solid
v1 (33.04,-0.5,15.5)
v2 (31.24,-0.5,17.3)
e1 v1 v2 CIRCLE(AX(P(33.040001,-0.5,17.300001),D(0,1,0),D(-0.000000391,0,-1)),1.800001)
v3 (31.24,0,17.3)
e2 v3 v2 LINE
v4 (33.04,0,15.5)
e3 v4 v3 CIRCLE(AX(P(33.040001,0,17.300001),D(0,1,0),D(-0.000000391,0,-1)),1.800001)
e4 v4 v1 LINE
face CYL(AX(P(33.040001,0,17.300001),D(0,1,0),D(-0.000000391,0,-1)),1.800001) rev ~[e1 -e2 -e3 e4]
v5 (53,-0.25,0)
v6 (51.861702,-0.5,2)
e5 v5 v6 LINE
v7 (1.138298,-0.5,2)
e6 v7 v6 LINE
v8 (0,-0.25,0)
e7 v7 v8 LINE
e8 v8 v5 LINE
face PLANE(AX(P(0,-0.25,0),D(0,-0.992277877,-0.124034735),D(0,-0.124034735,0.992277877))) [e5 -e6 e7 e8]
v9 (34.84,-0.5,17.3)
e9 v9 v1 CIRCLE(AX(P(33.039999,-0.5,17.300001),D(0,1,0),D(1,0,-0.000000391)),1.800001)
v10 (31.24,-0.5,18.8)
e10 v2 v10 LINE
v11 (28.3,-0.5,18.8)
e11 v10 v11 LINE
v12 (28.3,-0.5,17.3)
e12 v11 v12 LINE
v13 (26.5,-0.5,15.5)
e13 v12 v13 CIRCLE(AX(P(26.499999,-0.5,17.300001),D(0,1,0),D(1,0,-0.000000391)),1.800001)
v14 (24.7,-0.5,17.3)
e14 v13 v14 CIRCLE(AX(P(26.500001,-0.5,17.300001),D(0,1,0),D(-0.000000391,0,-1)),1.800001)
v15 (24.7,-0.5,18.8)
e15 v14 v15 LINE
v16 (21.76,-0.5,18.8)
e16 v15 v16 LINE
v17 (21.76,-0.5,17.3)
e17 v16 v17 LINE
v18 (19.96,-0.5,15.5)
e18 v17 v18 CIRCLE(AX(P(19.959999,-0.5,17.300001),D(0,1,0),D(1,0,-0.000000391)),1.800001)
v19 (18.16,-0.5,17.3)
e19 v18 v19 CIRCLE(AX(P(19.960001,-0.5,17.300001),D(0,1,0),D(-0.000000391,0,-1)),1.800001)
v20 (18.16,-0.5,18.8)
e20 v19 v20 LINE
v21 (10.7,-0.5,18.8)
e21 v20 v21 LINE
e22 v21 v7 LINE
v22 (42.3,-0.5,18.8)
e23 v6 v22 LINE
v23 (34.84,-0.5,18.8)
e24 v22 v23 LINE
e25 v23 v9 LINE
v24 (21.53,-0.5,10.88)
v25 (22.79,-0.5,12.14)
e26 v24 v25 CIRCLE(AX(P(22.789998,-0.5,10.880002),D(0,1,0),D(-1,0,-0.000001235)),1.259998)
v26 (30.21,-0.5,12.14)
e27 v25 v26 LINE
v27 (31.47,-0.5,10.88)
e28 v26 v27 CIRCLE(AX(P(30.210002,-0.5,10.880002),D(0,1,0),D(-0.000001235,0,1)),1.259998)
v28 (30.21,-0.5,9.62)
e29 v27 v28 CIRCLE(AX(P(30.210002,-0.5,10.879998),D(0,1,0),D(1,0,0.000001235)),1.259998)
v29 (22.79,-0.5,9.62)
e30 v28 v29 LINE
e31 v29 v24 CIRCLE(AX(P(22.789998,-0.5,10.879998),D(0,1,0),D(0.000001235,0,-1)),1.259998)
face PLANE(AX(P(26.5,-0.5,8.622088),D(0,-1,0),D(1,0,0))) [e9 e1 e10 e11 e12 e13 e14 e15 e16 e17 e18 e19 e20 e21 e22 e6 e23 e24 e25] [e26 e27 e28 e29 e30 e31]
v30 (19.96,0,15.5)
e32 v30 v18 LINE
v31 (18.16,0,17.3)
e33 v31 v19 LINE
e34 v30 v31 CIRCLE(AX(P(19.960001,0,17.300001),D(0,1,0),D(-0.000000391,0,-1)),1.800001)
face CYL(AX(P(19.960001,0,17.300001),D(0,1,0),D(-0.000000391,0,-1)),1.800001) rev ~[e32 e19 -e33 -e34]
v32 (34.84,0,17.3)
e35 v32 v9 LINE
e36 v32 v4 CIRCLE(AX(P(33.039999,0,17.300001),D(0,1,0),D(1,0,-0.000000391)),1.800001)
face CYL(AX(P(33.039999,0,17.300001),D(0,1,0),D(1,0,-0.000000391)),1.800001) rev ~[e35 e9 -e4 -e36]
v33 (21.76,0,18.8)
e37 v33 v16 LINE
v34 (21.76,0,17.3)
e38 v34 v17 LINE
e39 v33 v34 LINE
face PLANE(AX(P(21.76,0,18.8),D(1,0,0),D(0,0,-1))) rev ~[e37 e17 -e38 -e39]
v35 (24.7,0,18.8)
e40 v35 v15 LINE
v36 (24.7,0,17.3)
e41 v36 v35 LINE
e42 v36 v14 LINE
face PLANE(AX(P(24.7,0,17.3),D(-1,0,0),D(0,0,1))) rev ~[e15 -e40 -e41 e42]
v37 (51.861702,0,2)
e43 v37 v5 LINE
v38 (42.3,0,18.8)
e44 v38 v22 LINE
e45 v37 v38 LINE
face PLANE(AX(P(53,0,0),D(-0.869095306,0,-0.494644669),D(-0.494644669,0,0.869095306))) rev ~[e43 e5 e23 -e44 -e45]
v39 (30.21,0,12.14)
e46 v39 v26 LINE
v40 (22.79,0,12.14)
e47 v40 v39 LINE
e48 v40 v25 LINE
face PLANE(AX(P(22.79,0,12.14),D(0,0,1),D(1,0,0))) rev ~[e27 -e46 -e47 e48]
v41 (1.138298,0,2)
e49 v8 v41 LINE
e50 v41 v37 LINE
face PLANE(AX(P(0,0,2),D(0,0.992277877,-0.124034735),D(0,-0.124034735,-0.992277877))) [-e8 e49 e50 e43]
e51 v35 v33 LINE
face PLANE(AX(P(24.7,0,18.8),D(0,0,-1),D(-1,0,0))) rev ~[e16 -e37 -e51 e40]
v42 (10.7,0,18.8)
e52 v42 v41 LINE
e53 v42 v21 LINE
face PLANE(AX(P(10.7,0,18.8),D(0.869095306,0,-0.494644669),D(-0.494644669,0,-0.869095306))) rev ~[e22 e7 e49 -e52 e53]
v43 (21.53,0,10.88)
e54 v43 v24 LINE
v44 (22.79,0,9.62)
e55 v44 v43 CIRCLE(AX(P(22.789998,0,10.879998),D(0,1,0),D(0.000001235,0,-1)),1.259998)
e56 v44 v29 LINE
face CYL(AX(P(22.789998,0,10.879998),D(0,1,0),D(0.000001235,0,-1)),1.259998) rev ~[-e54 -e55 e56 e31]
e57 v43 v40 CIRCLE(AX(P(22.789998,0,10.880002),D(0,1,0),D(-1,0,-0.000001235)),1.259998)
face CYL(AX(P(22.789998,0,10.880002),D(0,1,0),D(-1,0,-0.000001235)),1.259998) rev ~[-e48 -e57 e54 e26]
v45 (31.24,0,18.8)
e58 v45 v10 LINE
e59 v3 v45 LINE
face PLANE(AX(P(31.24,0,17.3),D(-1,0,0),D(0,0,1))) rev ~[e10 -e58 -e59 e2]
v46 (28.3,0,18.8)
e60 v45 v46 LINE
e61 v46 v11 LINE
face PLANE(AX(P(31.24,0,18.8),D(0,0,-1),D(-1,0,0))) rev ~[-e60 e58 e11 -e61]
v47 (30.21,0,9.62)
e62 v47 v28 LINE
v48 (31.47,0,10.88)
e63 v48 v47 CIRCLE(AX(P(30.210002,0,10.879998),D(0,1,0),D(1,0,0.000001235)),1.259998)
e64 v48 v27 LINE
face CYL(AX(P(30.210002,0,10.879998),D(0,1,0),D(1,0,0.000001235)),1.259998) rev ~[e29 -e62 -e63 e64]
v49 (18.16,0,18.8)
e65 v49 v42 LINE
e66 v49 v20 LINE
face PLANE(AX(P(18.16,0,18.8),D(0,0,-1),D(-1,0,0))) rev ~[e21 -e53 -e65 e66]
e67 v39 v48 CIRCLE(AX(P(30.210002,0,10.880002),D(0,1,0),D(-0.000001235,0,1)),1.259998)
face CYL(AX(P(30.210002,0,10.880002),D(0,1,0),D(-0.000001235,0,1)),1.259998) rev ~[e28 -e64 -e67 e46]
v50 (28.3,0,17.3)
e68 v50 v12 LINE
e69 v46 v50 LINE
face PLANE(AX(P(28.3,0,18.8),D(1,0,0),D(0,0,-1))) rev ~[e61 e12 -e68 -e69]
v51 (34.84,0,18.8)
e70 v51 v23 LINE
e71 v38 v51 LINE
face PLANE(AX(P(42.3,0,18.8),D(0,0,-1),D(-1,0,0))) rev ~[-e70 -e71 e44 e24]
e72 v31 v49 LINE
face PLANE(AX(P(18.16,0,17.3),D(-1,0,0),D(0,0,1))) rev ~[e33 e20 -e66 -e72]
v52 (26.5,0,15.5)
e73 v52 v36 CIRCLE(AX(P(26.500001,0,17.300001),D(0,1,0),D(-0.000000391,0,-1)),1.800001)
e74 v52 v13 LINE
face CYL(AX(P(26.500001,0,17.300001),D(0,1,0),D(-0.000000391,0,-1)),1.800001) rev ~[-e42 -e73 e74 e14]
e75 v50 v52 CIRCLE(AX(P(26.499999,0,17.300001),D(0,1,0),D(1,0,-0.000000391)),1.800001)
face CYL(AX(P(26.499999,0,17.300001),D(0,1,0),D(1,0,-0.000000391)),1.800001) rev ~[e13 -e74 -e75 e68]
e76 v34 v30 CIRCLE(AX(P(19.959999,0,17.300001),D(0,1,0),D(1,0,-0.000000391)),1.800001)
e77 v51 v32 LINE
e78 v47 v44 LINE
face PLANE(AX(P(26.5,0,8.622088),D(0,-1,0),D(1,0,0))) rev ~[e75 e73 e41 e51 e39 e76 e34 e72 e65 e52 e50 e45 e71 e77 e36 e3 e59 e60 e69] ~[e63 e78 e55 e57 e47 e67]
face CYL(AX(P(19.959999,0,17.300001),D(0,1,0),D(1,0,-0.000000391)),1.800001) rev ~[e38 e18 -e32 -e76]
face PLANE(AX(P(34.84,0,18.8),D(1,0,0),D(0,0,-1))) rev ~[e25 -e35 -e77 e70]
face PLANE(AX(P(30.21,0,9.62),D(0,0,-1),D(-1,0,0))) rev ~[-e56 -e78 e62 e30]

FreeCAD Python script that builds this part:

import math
import FreeCAD as App
import Part
import Sketcher
Q = App.Units.Quantity


def add_polygon(sketch, points):
    """Adds a closed chain of lines whose ends are joined by coincident constraints."""
    first, n = sketch.GeometryCount, len(points)
    for a, b in zip(points, points[1:] + points[:1]):
        sketch.addGeometry(Part.LineSegment(App.Vector(*a, 0), App.Vector(*b, 0)), False)
    for i in range(n):
        sketch.addConstraint(Sketcher.Constraint("Coincident", first + i, 2, first + (i + 1) % n, 1))

doc = App.newDocument("Part")
body = doc.addObject("PartDesign::Body", "Body")

sketch1 = doc.addObject("Sketcher::SketchObject", "Sketch")
body.addObject(sketch1)
sketch1.AttachmentSupport = (doc.XZ_Plane, [""])
sketch1.MapMode = "FlatFace"
sketch1.addGeometry([
    Part.LineSegment(App.Vector(10.7, 18.8, 0), App.Vector(0, 0, 0)),
    Part.LineSegment(App.Vector(0, 0, 0), App.Vector(53, 0, 0)),
    Part.LineSegment(App.Vector(53, 0, 0), App.Vector(42.3, 18.8, 0)),
    Part.LineSegment(App.Vector(42.3, 18.8, 0), App.Vector(34.84, 18.8, 0)),
    Part.LineSegment(App.Vector(34.84, 18.8, 0), App.Vector(34.84, 17.3, 0)),
    Part.ArcOfCircle(Part.Circle(App.Vector(33.039999, 17.300001, 0), App.Vector(0, 0, 1), 1.800001), math.radians(-89.999978), math.radians(-0.000022)),
    Part.ArcOfCircle(Part.Circle(App.Vector(33.040001, 17.300001, 0), App.Vector(0, 0, 1), 1.800001), math.radians(-179.999978), math.radians(-90.000022)),
    Part.LineSegment(App.Vector(31.24, 17.3, 0), App.Vector(31.24, 18.8, 0)),
    Part.LineSegment(App.Vector(31.24, 18.8, 0), App.Vector(28.3, 18.8, 0)),
    Part.LineSegment(App.Vector(28.3, 18.8, 0), App.Vector(28.3, 17.3, 0)),
    Part.ArcOfCircle(Part.Circle(App.Vector(26.499999, 17.300001, 0), App.Vector(0, 0, 1), 1.800001), math.radians(-89.999978), math.radians(-0.000022)),
    Part.ArcOfCircle(Part.Circle(App.Vector(26.500001, 17.300001, 0), App.Vector(0, 0, 1), 1.800001), math.radians(-179.999978), math.radians(-90.000022)),
    Part.LineSegment(App.Vector(24.7, 17.3, 0), App.Vector(24.7, 18.8, 0)),
    Part.LineSegment(App.Vector(24.7, 18.8, 0), App.Vector(21.76, 18.8, 0)),
    Part.LineSegment(App.Vector(21.76, 18.8, 0), App.Vector(21.76, 17.3, 0)),
    Part.ArcOfCircle(Part.Circle(App.Vector(19.959999, 17.300001, 0), App.Vector(0, 0, 1), 1.800001), math.radians(-89.999978), math.radians(-0.000022)),
    Part.ArcOfCircle(Part.Circle(App.Vector(19.960001, 17.300001, 0), App.Vector(0, 0, 1), 1.800001), math.radians(-179.999978), math.radians(-90.000022)),
    Part.LineSegment(App.Vector(18.16, 17.3, 0), App.Vector(18.16, 18.8, 0)),
    Part.LineSegment(App.Vector(18.16, 18.8, 0), App.Vector(10.7, 18.8, 0)),
    Part.ArcOfCircle(Part.Circle(App.Vector(22.789998, 10.879998, 0), App.Vector(0, 0, 1), 1.259998), math.radians(179.999929), math.radians(270.000071)),
    Part.ArcOfCircle(Part.Circle(App.Vector(22.789998, 10.880002, 0), App.Vector(0, 0, 1), 1.259998), math.radians(89.999929), math.radians(180.000071)),
    Part.LineSegment(App.Vector(22.79, 12.14, 0), App.Vector(30.21, 12.14, 0)),
    Part.ArcOfCircle(Part.Circle(App.Vector(30.210002, 10.880002, 0), App.Vector(0, 0, 1), 1.259998), math.radians(-0.000071), math.radians(90.000071)),
    Part.ArcOfCircle(Part.Circle(App.Vector(30.210002, 10.879998, 0), App.Vector(0, 0, 1), 1.259998), math.radians(-90.000071), math.radians(0.000071)),
    Part.LineSegment(App.Vector(30.21, 9.62, 0), App.Vector(22.79, 9.62, 0)),
], False)
sketch1.addConstraint([
    Sketcher.Constraint("Coincident", 0, 2, 1, 1),
    Sketcher.Constraint("Coincident", 1, 2, 2, 1),
    Sketcher.Constraint("Coincident", 2, 2, 3, 1),
    Sketcher.Constraint("Coincident", 3, 2, 4, 1),
    Sketcher.Constraint("Tangent", 4, 2, 5, 2),
    Sketcher.Constraint("Tangent", 5, 1, 6, 2),
    Sketcher.Constraint("Tangent", 6, 1, 7, 1),
    Sketcher.Constraint("Coincident", 7, 2, 8, 1),
    Sketcher.Constraint("Coincident", 8, 2, 9, 1),
    Sketcher.Constraint("Tangent", 9, 2, 10, 2),
    Sketcher.Constraint("Tangent", 10, 1, 11, 2),
    Sketcher.Constraint("Tangent", 11, 1, 12, 1),
    Sketcher.Constraint("Coincident", 12, 2, 13, 1),
    Sketcher.Constraint("Coincident", 13, 2, 14, 1),
    Sketcher.Constraint("Tangent", 14, 2, 15, 2),
    Sketcher.Constraint("Tangent", 15, 1, 16, 2),
    Sketcher.Constraint("Tangent", 16, 1, 17, 1),
    Sketcher.Constraint("Coincident", 17, 2, 18, 1),
    Sketcher.Constraint("Coincident", 18, 2, 0, 1),
    Sketcher.Constraint("Coincident", 19, 1, 20, 2),
    Sketcher.Constraint("Tangent", 20, 1, 21, 1),
    Sketcher.Constraint("Tangent", 21, 2, 22, 2),
    Sketcher.Constraint("Coincident", 22, 1, 23, 2),
    Sketcher.Constraint("Tangent", 23, 1, 24, 1),
    Sketcher.Constraint("Tangent", 24, 2, 19, 2),
    Sketcher.Constraint("Horizontal", 1),
    Sketcher.Constraint("Horizontal", 3),
    Sketcher.Constraint("Vertical", 4),
    Sketcher.Constraint("Vertical", 7),
    Sketcher.Constraint("Horizontal", 8),
    Sketcher.Constraint("Vertical", 9),
    Sketcher.Constraint("Vertical", 12),
    Sketcher.Constraint("Horizontal", 13),
    Sketcher.Constraint("Vertical", 14),
    Sketcher.Constraint("Vertical", 17),
    Sketcher.Constraint("Horizontal", 18),
    Sketcher.Constraint("Horizontal", 21),
    Sketcher.Constraint("Horizontal", 24),
    Sketcher.Constraint("Coincident", 0, 2, -1, 1),
    Sketcher.Constraint("Coincident", 20, 3, 19, 3),
    Sketcher.Constraint("Coincident", 23, 3, 22, 3),
    Sketcher.Constraint("Equal", 5, 6),
    Sketcher.Constraint("Equal", 6, 10),
    Sketcher.Constraint("Equal", 10, 11),
    Sketcher.Constraint("Equal", 11, 15),
    Sketcher.Constraint("Equal", 15, 16),
    Sketcher.Constraint("Horizontal", 6, 3, 10, 3),
    Sketcher.Constraint("Horizontal", 11, 3, 15, 3),
    Sketcher.Constraint("Horizontal", 3, 2, 7, 2),
    Sketcher.Constraint("Horizontal", 8, 2, 12, 2),
    Sketcher.Constraint("Horizontal", 13, 2, 17, 2),
    Sketcher.Constraint("Horizontal", 23, 3, 19, 1),
    Sketcher.Constraint("Horizontal", 19, 1, 22, 1),
    Sketcher.Constraint("Vertical", 6, 3, 5, 1),
    Sketcher.Constraint("Vertical", 11, 3, 10, 1),
    Sketcher.Constraint("Vertical", 16, 3, 15, 1),
    Sketcher.Constraint("Equal", 8, 13),
    Sketcher.Constraint("Equal", 3, 18),
    Sketcher.Constraint("Equal", 0, 2),
    Sketcher.Constraint("Radius", 5, Q("1.800001 mm")),
    Sketcher.Constraint("DistanceX", 1, 1, 1, 2, Q("53 mm")),
    Sketcher.Constraint("Radius", 19, Q("1.259998 mm")),
    Sketcher.Constraint("DistanceY", 4, 2, 4, 1, Q("1.5 mm")),
    Sketcher.Constraint("DistanceX", 3, 2, 3, 1, Q("7.46 mm")),
    Sketcher.Constraint("DistanceX", 8, 2, 8, 1, Q("2.94 mm")),
    Sketcher.Constraint("DistanceX", 21, 1, 21, 2, Q("7.42 mm")),
    Sketcher.Constraint("DistanceY", -1, 1, 5, 3, Q("17.300001 mm")),
    Sketcher.Constraint("DistanceX", -1, 1, 19, 3, Q("22.789998 mm")),
    Sketcher.Constraint("DistanceY", -1, 1, 19, 3, Q("10.879998 mm")),
])
pad1 = doc.addObject("PartDesign::Pad", "Pad")
body.addObject(pad1)
pad1.Profile = sketch1
pad1.Length = 0.5

sketch2 = doc.addObject("Sketcher::SketchObject", "Sketch001")
body.addObject(sketch2)
sketch2.AttachmentSupport = (doc.YZ_Plane, [""])
sketch2.MapMode = "FlatFace"
add_polygon(sketch2, [(0, 2), (-0.25, 0), (0, 0)])
add_polygon(sketch2, [(-0.5, 2), (-0.5, 0), (-0.25, 0)])
sketch2.addConstraint([
    Sketcher.Constraint("Horizontal", 1),
    Sketcher.Constraint("Vertical", 2),
    Sketcher.Constraint("Vertical", 3),
    Sketcher.Constraint("Horizontal", 4),
    Sketcher.Constraint("Coincident", 1, 2, -1, 1),
    Sketcher.Constraint("Coincident", 4, 2, 0, 2),
    Sketcher.Constraint("Horizontal", 2, 2, 5, 2),
    Sketcher.Constraint("Equal", 1, 4),
    Sketcher.Constraint("DistanceY", 2, 1, 2, 2, Q("2 mm")),
    Sketcher.Constraint("DistanceX", 1, 1, 1, 2, Q("0.25 mm")),
])
pocket1 = doc.addObject("PartDesign::Pocket", "Pocket")
body.addObject(pocket1)
pocket1.Profile = sketch2
pocket1.Type = "ThroughAll"
pocket1.Reversed = True

doc.recompute()
